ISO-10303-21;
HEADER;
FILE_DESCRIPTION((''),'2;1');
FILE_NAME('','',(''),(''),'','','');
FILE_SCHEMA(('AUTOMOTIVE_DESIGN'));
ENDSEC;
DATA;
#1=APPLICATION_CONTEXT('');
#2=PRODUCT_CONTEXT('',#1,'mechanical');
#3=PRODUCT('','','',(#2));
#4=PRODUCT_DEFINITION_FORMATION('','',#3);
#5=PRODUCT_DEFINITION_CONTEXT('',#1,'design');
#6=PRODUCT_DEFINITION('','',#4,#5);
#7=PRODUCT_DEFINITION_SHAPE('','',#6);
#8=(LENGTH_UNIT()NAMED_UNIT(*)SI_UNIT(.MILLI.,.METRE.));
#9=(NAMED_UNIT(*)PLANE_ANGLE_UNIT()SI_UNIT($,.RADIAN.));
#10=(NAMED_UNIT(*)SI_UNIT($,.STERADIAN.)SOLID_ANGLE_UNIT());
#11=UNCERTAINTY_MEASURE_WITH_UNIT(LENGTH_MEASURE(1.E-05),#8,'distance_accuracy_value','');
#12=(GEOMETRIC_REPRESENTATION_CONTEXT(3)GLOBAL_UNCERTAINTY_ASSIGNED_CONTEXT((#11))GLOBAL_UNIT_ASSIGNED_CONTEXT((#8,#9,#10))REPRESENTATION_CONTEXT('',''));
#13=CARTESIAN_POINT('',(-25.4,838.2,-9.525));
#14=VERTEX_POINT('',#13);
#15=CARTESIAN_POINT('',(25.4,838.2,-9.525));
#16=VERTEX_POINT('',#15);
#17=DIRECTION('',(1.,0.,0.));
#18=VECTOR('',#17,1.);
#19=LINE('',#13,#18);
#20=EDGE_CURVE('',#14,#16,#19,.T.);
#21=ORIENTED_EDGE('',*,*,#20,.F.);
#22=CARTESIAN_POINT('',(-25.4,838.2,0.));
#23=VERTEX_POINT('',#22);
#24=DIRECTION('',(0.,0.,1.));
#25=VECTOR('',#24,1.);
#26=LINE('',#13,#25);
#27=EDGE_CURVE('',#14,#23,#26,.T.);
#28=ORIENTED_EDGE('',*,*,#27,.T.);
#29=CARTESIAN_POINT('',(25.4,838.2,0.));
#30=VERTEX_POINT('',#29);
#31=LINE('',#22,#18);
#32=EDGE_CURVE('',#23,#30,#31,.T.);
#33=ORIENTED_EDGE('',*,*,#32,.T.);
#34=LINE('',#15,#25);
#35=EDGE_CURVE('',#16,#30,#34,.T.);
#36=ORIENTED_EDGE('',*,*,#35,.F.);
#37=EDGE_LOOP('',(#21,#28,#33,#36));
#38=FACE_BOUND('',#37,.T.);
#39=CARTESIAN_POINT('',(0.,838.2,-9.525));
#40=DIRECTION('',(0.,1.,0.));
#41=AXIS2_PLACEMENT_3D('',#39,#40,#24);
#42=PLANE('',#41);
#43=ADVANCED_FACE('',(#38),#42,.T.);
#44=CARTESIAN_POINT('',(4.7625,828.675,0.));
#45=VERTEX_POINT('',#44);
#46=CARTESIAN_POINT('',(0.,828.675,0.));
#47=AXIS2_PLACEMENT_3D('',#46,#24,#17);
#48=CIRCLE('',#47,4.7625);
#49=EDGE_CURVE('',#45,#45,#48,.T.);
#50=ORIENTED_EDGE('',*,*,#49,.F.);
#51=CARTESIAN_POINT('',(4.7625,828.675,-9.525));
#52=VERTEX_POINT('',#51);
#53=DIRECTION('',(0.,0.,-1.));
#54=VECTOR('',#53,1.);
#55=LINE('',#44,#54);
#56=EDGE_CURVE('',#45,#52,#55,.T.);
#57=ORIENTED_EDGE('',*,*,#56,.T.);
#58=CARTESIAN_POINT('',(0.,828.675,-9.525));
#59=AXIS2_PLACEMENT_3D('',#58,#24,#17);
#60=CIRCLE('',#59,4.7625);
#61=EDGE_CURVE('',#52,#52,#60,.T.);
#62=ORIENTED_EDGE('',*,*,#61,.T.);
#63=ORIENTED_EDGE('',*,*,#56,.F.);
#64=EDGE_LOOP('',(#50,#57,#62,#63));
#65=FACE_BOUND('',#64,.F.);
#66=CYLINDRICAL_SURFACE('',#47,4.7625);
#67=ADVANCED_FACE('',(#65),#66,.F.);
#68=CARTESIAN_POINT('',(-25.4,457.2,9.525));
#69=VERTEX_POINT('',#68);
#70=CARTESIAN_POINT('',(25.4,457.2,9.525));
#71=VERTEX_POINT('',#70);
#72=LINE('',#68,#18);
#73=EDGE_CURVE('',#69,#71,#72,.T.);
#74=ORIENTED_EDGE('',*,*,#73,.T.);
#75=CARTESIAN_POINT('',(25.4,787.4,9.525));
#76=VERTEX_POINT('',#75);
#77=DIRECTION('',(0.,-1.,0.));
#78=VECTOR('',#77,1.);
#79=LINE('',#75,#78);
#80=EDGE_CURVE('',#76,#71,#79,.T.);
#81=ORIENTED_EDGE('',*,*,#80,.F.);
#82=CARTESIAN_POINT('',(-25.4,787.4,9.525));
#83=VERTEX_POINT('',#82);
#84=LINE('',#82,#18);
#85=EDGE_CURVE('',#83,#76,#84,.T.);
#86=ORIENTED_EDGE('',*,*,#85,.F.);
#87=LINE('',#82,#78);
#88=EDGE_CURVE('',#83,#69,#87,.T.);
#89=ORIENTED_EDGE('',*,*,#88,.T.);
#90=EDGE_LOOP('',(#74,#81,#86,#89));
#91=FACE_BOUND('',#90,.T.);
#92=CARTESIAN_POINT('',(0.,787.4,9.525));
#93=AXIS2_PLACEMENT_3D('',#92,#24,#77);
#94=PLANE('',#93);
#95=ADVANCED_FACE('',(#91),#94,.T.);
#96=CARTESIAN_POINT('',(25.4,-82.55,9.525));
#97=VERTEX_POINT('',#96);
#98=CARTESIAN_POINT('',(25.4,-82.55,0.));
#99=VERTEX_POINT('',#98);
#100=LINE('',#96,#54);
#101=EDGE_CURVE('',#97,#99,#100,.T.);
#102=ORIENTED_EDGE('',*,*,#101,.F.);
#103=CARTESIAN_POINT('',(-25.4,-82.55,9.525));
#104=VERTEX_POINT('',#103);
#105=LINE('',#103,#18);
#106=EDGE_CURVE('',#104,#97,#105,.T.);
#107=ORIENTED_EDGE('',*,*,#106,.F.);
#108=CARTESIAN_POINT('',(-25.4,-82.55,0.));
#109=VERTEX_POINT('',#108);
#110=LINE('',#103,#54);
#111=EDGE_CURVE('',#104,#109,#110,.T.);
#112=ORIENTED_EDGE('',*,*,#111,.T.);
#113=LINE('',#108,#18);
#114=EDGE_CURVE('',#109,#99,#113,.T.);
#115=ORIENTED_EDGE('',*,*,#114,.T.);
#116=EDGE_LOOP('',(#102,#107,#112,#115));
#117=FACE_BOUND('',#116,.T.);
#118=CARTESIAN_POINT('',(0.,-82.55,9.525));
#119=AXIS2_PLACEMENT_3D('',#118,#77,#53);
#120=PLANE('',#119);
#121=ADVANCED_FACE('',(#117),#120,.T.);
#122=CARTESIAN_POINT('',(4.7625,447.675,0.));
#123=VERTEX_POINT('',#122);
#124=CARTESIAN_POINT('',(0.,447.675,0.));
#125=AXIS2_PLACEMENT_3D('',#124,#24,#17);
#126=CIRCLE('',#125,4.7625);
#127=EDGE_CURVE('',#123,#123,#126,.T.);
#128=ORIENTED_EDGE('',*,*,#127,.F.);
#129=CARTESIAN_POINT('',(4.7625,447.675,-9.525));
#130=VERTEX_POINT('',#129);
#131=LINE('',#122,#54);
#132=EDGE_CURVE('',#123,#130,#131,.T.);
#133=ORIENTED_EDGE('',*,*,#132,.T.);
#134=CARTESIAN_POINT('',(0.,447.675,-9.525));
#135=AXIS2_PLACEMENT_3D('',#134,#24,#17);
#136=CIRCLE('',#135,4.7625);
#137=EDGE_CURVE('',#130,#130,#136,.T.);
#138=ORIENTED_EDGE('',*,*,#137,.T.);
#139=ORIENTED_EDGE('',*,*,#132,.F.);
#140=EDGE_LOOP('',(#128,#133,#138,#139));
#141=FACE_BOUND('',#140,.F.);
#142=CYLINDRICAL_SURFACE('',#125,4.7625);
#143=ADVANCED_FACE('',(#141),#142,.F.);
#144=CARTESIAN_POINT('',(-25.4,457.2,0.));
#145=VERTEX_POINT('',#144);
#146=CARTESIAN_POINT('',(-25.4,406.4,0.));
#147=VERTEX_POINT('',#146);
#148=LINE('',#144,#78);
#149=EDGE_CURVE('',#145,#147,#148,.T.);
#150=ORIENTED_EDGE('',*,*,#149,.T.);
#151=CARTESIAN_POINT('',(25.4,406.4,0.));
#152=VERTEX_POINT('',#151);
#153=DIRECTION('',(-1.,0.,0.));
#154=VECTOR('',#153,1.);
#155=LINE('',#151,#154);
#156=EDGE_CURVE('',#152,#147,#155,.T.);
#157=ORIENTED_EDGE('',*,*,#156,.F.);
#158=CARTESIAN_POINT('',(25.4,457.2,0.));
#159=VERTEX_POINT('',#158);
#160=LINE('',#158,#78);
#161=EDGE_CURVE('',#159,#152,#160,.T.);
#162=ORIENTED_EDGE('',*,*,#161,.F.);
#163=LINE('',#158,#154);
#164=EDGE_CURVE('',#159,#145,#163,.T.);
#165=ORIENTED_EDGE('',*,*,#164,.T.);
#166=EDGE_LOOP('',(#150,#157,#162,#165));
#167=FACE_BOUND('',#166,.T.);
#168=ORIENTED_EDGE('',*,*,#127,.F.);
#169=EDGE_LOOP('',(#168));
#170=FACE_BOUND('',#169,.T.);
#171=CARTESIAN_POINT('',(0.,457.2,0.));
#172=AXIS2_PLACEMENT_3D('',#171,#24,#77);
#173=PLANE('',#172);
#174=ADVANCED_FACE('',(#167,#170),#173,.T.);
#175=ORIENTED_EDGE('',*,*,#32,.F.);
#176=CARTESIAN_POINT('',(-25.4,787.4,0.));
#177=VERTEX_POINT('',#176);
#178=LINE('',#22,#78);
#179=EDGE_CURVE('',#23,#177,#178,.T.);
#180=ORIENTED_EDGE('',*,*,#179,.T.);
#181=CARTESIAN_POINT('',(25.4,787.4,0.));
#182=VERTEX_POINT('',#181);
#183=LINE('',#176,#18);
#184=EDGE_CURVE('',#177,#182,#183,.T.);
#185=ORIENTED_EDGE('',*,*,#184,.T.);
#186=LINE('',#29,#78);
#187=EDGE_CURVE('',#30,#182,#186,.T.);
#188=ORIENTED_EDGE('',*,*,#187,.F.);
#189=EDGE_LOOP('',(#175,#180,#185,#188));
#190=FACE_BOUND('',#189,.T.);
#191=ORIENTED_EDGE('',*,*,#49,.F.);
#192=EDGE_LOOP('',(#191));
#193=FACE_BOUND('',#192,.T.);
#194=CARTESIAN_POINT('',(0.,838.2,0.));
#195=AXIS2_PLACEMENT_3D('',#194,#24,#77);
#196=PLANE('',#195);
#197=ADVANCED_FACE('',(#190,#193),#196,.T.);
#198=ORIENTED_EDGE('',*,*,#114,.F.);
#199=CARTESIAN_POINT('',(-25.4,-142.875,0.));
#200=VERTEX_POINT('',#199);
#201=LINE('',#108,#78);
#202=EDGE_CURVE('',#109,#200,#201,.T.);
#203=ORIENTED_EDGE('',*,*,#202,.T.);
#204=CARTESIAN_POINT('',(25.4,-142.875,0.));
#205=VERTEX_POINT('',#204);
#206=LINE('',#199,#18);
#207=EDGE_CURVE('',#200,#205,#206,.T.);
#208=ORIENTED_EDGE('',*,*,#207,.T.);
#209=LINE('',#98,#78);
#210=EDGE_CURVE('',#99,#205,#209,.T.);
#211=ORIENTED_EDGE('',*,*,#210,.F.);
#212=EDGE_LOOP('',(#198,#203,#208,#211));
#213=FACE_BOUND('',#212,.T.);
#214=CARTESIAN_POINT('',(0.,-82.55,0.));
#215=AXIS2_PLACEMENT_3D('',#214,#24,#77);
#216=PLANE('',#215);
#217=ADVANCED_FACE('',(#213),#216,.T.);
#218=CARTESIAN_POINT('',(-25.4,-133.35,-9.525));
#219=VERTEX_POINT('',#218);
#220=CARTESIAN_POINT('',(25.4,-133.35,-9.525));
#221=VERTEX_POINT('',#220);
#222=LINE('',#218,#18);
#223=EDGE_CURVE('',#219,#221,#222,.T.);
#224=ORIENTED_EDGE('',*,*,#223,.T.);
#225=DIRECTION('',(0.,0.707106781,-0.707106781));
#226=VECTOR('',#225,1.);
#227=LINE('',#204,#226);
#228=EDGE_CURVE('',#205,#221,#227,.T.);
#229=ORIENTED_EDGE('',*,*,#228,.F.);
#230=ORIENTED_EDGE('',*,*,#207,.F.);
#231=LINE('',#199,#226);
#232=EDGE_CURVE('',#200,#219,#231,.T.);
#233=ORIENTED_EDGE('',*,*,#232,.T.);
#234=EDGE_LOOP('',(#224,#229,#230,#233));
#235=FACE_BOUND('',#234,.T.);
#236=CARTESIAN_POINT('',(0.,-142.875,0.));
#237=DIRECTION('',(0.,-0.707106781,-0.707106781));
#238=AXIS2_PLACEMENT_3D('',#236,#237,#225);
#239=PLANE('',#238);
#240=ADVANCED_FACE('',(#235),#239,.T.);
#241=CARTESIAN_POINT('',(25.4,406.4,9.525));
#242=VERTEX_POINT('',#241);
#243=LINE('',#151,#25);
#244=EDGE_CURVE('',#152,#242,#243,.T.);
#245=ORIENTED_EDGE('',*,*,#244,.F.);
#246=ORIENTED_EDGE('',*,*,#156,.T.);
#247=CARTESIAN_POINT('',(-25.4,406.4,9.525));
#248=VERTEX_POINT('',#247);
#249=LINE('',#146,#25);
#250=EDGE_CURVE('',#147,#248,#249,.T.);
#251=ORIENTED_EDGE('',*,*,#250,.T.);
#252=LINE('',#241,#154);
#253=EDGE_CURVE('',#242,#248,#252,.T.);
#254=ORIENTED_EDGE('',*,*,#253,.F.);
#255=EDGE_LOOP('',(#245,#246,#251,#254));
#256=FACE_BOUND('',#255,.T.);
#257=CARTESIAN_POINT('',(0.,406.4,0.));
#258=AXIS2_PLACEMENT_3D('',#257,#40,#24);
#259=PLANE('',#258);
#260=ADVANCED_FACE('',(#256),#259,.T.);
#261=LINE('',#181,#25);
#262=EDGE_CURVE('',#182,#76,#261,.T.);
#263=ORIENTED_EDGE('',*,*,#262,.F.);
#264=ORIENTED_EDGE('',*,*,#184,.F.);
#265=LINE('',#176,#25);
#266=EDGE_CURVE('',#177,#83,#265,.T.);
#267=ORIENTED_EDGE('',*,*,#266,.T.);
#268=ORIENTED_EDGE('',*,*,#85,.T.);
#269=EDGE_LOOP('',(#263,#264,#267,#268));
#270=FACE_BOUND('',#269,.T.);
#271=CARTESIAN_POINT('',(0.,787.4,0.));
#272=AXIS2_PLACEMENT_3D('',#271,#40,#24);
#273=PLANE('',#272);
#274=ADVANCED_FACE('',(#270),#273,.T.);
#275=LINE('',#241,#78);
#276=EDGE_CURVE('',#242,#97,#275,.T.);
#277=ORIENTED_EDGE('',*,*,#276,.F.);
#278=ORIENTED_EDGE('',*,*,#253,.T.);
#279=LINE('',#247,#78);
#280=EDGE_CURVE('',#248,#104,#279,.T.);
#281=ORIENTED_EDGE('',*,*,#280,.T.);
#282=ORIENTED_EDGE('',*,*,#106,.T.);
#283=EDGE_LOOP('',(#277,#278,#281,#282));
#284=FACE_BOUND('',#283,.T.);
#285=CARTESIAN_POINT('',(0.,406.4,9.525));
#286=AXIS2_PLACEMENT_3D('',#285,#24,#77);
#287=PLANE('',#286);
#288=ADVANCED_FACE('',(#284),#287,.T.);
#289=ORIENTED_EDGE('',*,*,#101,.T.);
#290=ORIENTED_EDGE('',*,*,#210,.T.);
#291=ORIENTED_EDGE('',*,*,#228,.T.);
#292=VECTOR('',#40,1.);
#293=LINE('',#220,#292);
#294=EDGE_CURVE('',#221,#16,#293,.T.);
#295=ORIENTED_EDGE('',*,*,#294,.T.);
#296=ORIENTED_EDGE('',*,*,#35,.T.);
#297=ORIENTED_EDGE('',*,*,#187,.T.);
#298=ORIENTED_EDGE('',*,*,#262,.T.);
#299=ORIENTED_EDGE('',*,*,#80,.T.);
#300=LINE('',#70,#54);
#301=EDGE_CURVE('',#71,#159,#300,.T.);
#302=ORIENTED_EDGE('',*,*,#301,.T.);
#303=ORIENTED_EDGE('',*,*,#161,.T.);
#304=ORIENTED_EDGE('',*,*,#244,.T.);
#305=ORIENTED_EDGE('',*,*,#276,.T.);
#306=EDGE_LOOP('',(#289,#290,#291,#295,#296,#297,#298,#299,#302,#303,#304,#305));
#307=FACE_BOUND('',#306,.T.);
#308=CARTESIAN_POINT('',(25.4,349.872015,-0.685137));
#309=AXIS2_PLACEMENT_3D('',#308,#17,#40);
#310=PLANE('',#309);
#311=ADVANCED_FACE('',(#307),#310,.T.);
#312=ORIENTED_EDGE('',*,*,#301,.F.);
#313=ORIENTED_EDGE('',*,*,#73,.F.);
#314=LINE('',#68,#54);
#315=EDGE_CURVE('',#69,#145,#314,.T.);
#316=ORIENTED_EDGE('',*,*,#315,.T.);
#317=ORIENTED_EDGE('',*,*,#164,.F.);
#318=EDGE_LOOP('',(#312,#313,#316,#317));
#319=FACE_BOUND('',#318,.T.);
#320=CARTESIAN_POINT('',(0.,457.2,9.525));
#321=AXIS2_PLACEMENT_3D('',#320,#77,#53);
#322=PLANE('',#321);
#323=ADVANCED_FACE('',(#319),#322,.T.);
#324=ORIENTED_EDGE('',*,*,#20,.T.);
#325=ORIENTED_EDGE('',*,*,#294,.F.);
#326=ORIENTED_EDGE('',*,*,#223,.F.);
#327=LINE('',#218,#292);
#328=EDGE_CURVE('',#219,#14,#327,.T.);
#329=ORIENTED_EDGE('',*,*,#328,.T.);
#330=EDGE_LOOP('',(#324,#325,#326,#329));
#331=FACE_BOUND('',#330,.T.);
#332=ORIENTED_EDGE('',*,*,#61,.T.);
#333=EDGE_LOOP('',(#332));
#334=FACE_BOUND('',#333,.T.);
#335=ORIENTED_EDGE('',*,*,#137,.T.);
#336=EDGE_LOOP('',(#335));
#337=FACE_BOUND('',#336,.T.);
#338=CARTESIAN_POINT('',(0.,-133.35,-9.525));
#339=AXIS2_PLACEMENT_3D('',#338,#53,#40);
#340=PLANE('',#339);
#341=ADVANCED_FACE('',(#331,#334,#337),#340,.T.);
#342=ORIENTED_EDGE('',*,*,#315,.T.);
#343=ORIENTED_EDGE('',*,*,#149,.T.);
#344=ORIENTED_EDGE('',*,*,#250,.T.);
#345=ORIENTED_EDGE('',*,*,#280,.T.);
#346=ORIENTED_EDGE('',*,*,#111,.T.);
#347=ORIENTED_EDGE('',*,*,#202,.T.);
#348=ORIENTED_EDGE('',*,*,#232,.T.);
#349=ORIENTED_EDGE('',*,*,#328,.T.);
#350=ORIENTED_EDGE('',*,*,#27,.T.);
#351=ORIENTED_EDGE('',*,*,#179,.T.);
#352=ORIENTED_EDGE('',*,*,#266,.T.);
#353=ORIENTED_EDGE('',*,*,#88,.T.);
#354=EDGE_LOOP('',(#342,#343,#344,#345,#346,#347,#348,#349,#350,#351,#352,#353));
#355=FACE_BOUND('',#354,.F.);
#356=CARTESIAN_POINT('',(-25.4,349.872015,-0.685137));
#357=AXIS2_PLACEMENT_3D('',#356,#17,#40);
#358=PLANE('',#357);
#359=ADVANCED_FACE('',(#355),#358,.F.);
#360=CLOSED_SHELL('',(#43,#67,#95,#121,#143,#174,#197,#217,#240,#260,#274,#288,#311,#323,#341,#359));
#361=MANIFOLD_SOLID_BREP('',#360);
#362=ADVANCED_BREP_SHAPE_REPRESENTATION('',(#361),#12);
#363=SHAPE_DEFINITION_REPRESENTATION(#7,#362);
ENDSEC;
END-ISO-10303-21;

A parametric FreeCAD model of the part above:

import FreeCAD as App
import Part
import Sketcher

V = App.Vector
Q = App.Units.Quantity


def add_polygon(sketch, points):
    """Adds a closed chain of lines whose ends are joined by coincident constraints."""
    first, n = sketch.GeometryCount, len(points)
    for a, b in zip(points, points[1:] + points[:1]):
        sketch.addGeometry(Part.LineSegment(App.Vector(*a, 0), App.Vector(*b, 0)), False)
    for i in range(n):
        sketch.addConstraint(Sketcher.Constraint("Coincident", first + i, 2, first + (i + 1) % n, 1))

doc = App.newDocument("Part")
params = doc.addObject("Spreadsheet::Sheet", "Params")
for row, (alias, value) in enumerate([
    ("sketch1_width", "2 in"),
    ("sketch1_width2", "13 in"),
    ("sketch1_width3", "19.25 in"),
    ("sketch1_width4", "2.375 in"),
    ("pad1_length", "2 in"),
    ("sketch2_diameter", "0.375 in"),
    ("pocket1_length", "1 in"),
], start=1):
    params.set(f"A{row}", alias)
    params.set(f"B{row}", "=" + value)
    params.setAlias(f"B{row}", alias)

body = doc.addObject("PartDesign::Body", "Body")

# Sketch on YZ plane
sketch1 = body.newObject("Sketcher::SketchObject", "Sketch")
sketch1.AttachmentSupport = (doc.getObject("YZ_Plane"), [""])
sketch1.MapMode = "FlatFace"
add_polygon(sketch1, [(406.4, 9.525), (-82.55, 9.525), (-82.55, 0), (-142.875, 0), (-133.35, -9.525), (838.2, -9.525), (838.2, 0), (787.4, 0), (787.4, 9.525), (457.2, 9.525), (457.2, 0), (406.4, 0)])  # lines 0-11
sketch1.addConstraint([
    Sketcher.Constraint("Horizontal", 0),
    Sketcher.Constraint("Vertical", 1),
    Sketcher.Constraint("Horizontal", 2),
    Sketcher.Constraint("Horizontal", 4),
    Sketcher.Constraint("Vertical", 5),
    Sketcher.Constraint("Horizontal", 6),
    Sketcher.Constraint("Vertical", 7),
    Sketcher.Constraint("Horizontal", 8),
    Sketcher.Constraint("Vertical", 9),
    Sketcher.Constraint("Horizontal", 10),
    Sketcher.Constraint("Vertical", 11),
    Sketcher.Constraint("PointOnObject", 1, 2, -1),
    Sketcher.Constraint("PointOnObject", 5, 2, -1),
    Sketcher.Constraint("PointOnObject", 9, 2, -1),
    Sketcher.Constraint("Horizontal", 0, 2, 7, 2),
    Sketcher.Constraint("Equal", 6, 10),
    Sketcher.Constraint("Equal", 1, 5),
    Sketcher.Constraint("DistanceX", 6, 2, 6, 1, Q("2 in")),
    Sketcher.Constraint("DistanceX", 8, 2, 8, 1, Q("13 in")),
    Sketcher.Constraint("DistanceX", -1, 1, 4, 2, Q("33 in")),
    Sketcher.Constraint("Angle", 3, Q("-45 deg")),
    Sketcher.Constraint("DistanceX", 3, 2, 1, 2, Q("2 in")),
    Sketcher.Constraint("DistanceX", 0, 2, 0, 1, Q("19.25 in")),
    Sketcher.Constraint("DistanceX", 2, 2, 2, 1, Q("2.375 in")),
])
sketch1.setExpression("Constraints[29]", "Params.sketch1_width")
sketch1.setExpression("Constraints[30]", "Params.sketch1_width2")
sketch1.setExpression("Constraints[34]", "Params.sketch1_width3")
sketch1.setExpression("Constraints[35]", "Params.sketch1_width4")
pad1 = body.newObject("PartDesign::Pad", "Pad")
pad1.Profile = sketch1
pad1.setExpression("Length", "Params.pad1_length")
pad1.Midplane = True

# Sketch on XY plane
sketch2 = body.newObject("Sketcher::SketchObject", "Sketch001")
sketch2.AttachmentSupport = (doc.getObject("XY_Plane"), [""])
sketch2.MapMode = "FlatFace"
sketch2.addGeometry([
    Part.Circle(V(0, 828.675, 0), V(0, 0, 1), 4.7625),
    Part.Circle(V(0, 447.675, 0), V(0, 0, 1), 4.7625),
], False)
sketch2.addConstraint([
    Sketcher.Constraint("Equal", 0, 1),
    Sketcher.Constraint("PointOnObject", 0, 3, -2),
    Sketcher.Constraint("PointOnObject", 1, 3, -2),
    Sketcher.Constraint("Diameter", 0, Q("0.375 in")),
    Sketcher.Constraint("DistanceY", 1, 3, 0, 3, Q("15 in")),
    Sketcher.Constraint("DistanceY", -1, 1, 0, 3, Q("32.625 in")),
])
sketch2.setExpression("Constraints[3]", "Params.sketch2_diameter")
pocket1 = body.newObject("PartDesign::Pocket", "Pocket")
pocket1.Profile = sketch2
pocket1.setExpression("Length", "Params.pocket1_length")

doc.recompute()
